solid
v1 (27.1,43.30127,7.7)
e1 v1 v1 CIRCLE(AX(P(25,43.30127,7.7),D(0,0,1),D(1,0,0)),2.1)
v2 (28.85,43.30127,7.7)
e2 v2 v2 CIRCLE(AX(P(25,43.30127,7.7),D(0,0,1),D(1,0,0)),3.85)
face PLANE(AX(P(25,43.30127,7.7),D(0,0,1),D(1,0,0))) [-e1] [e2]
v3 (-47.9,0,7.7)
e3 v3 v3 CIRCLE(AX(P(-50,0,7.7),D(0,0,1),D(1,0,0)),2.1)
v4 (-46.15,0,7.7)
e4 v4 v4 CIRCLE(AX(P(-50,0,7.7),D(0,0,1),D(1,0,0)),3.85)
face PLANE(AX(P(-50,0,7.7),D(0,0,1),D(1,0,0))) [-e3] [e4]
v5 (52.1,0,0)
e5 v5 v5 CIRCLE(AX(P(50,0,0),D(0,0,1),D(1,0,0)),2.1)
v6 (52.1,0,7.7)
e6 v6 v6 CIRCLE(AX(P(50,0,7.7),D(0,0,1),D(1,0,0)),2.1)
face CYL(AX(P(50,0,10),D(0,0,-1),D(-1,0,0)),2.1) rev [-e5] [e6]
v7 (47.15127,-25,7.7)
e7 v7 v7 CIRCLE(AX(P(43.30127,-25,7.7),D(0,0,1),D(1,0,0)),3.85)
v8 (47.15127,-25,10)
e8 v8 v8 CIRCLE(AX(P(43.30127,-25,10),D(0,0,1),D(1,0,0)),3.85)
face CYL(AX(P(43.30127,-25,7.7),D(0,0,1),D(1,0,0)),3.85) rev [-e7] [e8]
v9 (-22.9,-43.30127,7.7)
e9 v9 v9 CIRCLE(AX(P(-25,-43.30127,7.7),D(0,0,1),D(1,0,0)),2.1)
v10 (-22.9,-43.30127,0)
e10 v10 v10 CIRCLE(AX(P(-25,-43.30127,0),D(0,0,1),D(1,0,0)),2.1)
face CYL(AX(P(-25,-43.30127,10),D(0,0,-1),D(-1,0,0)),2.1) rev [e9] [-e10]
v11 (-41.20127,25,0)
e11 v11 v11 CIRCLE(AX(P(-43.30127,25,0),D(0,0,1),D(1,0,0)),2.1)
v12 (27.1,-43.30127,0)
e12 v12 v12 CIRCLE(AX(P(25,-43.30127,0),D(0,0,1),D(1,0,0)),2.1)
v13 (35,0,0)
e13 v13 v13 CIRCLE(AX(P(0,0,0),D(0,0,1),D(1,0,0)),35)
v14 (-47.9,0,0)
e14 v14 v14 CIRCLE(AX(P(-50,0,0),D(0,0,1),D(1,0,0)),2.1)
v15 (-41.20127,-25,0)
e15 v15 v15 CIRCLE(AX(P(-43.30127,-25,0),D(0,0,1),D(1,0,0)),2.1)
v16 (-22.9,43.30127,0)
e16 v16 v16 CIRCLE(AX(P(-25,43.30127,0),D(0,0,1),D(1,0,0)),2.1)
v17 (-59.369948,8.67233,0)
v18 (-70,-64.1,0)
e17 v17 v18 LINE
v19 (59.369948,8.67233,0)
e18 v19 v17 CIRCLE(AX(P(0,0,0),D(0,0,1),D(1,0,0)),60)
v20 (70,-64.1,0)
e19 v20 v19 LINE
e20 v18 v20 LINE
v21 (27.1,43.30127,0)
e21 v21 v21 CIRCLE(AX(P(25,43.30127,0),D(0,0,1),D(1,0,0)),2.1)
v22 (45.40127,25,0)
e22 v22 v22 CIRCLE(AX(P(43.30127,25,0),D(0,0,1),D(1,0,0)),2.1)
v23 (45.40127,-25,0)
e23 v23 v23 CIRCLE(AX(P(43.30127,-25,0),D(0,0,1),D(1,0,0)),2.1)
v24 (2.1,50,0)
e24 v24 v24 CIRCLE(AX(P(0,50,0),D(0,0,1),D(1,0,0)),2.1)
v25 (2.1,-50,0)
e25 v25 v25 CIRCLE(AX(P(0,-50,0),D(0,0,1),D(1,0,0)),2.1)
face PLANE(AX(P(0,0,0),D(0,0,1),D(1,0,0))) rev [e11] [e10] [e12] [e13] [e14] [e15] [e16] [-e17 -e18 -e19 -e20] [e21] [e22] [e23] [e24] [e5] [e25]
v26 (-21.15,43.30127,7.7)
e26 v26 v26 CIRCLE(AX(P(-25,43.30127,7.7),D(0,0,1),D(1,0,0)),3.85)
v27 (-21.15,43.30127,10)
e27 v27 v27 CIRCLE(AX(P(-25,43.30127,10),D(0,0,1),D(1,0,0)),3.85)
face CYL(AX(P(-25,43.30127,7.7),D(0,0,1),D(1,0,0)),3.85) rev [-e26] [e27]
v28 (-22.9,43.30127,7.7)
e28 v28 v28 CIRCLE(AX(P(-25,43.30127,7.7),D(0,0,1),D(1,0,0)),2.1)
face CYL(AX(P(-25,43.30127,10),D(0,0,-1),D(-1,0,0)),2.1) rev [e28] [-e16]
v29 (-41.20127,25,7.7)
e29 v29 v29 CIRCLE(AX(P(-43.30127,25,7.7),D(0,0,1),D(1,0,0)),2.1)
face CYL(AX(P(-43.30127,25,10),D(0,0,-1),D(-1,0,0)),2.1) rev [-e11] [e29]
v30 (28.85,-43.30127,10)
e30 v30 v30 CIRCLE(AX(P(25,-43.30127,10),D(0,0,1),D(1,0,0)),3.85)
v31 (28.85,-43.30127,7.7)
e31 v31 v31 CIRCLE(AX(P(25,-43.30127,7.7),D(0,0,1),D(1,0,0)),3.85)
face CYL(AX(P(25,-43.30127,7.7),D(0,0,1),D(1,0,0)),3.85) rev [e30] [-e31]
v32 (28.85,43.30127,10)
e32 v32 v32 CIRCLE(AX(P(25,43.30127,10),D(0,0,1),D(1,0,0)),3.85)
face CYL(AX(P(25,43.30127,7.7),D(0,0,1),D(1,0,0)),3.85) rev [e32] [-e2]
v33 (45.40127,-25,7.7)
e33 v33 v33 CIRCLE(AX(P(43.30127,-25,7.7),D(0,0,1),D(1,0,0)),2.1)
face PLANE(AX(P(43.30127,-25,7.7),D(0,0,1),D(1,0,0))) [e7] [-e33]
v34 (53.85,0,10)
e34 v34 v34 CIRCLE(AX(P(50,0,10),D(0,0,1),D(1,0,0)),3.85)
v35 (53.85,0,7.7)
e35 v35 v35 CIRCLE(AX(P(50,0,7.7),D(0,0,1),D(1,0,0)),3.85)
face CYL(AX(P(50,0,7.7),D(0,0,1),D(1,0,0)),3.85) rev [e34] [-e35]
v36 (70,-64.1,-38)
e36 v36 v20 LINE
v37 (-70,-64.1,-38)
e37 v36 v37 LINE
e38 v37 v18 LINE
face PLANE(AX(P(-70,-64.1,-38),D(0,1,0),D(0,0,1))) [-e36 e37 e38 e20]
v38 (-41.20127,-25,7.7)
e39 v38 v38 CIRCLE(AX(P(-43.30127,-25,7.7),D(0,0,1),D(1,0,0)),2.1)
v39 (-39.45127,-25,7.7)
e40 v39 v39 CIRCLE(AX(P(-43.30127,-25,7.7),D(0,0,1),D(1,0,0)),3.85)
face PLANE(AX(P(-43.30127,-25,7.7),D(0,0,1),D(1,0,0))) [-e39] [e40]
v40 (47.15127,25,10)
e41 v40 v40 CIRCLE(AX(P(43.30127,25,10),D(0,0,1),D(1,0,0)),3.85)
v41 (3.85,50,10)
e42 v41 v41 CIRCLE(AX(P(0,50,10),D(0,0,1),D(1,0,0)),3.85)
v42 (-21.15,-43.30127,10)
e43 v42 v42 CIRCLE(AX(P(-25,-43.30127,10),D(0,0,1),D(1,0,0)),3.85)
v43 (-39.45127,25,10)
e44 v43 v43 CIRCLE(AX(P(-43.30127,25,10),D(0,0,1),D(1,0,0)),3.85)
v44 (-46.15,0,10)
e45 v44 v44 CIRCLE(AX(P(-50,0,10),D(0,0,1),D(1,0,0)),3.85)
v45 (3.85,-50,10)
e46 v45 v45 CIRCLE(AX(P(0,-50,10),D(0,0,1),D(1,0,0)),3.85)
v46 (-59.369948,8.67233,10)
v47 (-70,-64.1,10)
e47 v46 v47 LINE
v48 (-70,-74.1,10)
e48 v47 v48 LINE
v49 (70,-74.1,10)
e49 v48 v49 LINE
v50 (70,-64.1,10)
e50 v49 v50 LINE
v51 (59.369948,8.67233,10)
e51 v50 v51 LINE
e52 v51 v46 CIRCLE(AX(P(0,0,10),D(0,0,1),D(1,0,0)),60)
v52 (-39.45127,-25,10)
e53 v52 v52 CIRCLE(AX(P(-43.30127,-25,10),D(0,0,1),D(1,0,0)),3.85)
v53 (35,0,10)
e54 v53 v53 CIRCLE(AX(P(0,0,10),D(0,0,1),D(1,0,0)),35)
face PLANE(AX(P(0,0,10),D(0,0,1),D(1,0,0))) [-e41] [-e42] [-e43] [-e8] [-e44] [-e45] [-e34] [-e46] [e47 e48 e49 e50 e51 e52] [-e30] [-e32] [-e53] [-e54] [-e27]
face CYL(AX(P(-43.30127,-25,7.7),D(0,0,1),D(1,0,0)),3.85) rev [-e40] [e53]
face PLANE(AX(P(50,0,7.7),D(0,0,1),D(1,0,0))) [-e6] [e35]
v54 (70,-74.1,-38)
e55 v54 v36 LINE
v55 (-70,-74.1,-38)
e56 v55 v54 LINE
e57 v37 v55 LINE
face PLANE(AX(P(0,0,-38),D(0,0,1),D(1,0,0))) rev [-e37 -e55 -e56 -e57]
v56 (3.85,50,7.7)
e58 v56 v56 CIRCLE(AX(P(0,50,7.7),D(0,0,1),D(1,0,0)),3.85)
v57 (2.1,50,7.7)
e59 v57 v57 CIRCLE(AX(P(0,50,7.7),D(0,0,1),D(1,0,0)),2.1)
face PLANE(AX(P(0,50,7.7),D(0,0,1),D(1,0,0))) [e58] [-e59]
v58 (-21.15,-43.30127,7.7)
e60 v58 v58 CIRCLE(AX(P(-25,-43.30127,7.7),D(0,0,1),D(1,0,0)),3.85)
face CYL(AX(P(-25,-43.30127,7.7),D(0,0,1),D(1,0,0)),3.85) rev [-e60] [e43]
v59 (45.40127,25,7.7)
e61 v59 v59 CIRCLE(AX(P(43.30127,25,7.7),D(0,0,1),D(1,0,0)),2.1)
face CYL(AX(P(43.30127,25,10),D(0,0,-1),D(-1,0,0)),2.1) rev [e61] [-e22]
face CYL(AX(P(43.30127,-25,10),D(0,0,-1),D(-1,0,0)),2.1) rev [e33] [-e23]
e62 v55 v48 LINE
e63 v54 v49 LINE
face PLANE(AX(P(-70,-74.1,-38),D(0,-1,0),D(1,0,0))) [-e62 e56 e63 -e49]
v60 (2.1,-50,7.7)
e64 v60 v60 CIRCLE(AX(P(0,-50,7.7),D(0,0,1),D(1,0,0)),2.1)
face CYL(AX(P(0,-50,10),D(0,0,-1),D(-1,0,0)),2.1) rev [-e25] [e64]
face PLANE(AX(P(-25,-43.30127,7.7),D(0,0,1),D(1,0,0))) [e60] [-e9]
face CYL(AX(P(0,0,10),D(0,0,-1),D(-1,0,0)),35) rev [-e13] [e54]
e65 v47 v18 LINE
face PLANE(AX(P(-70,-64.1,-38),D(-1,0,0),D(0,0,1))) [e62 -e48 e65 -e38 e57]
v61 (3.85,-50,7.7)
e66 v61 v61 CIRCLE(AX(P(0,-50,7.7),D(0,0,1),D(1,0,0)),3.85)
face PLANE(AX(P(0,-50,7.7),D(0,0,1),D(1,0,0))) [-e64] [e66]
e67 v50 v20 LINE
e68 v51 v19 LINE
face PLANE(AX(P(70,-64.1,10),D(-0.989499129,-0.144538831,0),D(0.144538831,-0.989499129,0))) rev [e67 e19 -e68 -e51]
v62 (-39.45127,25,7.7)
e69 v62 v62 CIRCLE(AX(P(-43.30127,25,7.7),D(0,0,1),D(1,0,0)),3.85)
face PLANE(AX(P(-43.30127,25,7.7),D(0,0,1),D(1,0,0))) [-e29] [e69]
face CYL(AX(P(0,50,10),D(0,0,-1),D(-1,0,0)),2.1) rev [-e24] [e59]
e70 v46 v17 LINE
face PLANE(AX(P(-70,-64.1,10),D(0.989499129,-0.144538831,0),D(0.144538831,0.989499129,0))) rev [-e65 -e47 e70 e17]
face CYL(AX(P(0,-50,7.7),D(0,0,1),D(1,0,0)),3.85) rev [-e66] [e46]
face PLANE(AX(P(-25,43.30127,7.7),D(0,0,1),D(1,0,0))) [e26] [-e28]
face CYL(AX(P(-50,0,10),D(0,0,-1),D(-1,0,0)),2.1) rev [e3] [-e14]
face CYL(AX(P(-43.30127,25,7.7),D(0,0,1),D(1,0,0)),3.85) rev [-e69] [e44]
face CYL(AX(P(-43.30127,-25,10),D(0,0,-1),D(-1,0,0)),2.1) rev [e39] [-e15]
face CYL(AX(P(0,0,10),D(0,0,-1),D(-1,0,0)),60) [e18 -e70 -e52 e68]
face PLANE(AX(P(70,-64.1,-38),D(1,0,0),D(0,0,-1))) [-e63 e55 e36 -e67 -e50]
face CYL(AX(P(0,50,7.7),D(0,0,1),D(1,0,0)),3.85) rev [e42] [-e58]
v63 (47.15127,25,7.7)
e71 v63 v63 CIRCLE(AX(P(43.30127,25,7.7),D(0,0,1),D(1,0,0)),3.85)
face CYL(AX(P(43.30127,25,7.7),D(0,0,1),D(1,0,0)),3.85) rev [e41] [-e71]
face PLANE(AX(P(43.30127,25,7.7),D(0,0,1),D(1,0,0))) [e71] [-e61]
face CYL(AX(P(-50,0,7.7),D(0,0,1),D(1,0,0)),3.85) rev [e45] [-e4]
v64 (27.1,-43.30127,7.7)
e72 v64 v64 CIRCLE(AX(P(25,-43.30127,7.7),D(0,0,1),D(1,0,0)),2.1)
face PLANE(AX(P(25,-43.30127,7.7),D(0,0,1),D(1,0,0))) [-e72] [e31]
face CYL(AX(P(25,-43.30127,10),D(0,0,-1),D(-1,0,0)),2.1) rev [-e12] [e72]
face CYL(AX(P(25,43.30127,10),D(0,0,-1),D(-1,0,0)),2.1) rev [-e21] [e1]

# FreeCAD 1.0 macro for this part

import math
import FreeCAD as App
import Part
import Sketcher

V = App.Vector
Q = App.Units.Quantity


def add_polygon(sketch, points):
    """Adds a closed chain of lines whose ends are joined by coincident constraints."""
    first, n = sketch.GeometryCount, len(points)
    for a, b in zip(points, points[1:] + points[:1]):
        sketch.addGeometry(Part.LineSegment(App.Vector(*a, 0), App.Vector(*b, 0)), False)
    for i in range(n):
        sketch.addConstraint(Sketcher.Constraint("Coincident", first + i, 2, first + (i + 1) % n, 1))

doc = App.newDocument("Part")
body = doc.addObject("PartDesign::Body", "Body")

sketch1 = body.newObject("Sketcher::SketchObject", "Sketch")
sketch1.AttachmentSupport = (doc.getObject("XY_Plane"), [""])
sketch1.MapMode = "FlatFace"
sketch1.addGeometry(Part.LineSegment(V(-59.369948, 8.67233, 0), V(-70, -64.1, 0)), False)
sketch1.addGeometry(Part.LineSegment(V(-70, -64.1, 0), V(70, -64.1, 0)), False)
sketch1.addGeometry(Part.LineSegment(V(70, -64.1, 0), V(59.369948, 8.67233, 0)), False)
sketch1.addGeometry(Part.ArcOfCircle(Part.Circle(V(0, 0, 0), V(0, 0, 1), 60), math.radians(8.310575), math.radians(171.689425)), False)
sketch1.addGeometry(Part.Circle(V(25, -43.30127, 0), V(0, 0, 1), 2.1), False)
sketch1.addGeometry(Part.Circle(V(43.30127, -25, 0), V(0, 0, 1), 2.1), False)
sketch1.addGeometry(Part.Circle(V(0, -50, 0), V(0, 0, 1), 2.1), False)
sketch1.addGeometry(Part.Circle(V(-25, -43.30127, 0), V(0, 0, 1), 2.1), False)
sketch1.addGeometry(Part.Circle(V(-43.30127, -25, 0), V(0, 0, 1), 2.1), False)
sketch1.addGeometry(Part.Circle(V(50, 0, 0), V(0, 0, 1), 2.1), False)
sketch1.addGeometry(Part.Circle(V(43.30127, 25, 0), V(0, 0, 1), 2.1), False)
sketch1.addGeometry(Part.Circle(V(25, 43.30127, 0), V(0, 0, 1), 2.1), False)
sketch1.addGeometry(Part.Circle(V(0, 0, 0), V(0, 0, 1), 35), False)
sketch1.addGeometry(Part.Circle(V(-50, 0, 0), V(0, 0, 1), 2.1), False)
sketch1.addGeometry(Part.Circle(V(-43.30127, 25, 0), V(0, 0, 1), 2.1), False)
sketch1.addGeometry(Part.Circle(V(0, 50, 0), V(0, 0, 1), 2.1), False)
sketch1.addGeometry(Part.Circle(V(-25, 43.30127, 0), V(0, 0, 1), 2.1), False)
sketch1.addConstraint(Sketcher.Constraint("Coincident", 0, 2, 1, 1))
sketch1.addConstraint(Sketcher.Constraint("Coincident", 1, 2, 2, 1))
sketch1.addConstraint(Sketcher.Constraint("Tangent", 2, 2, 3, 1))
sketch1.addConstraint(Sketcher.Constraint("Tangent", 3, 2, 0, 1))
sketch1.addConstraint(Sketcher.Constraint("Horizontal", 1))
sketch1.addConstraint(Sketcher.Constraint("Coincident", 3, 3, -1, 1))
sketch1.addConstraint(Sketcher.Constraint("Coincident", 12, 3, -1, 1))
sketch1.addConstraint(Sketcher.Constraint("Equal", 4, 5))
sketch1.addConstraint(Sketcher.Constraint("Equal", 5, 6))
sketch1.addConstraint(Sketcher.Constraint("Equal", 6, 7))
sketch1.addConstraint(Sketcher.Constraint("Equal", 7, 8))
sketch1.addConstraint(Sketcher.Constraint("Equal", 8, 9))
sketch1.addConstraint(Sketcher.Constraint("Equal", 9, 10))
sketch1.addConstraint(Sketcher.Constraint("Equal", 10, 11))
sketch1.addConstraint(Sketcher.Constraint("Equal", 11, 13))
sketch1.addConstraint(Sketcher.Constraint("Equal", 13, 14))
sketch1.addConstraint(Sketcher.Constraint("Equal", 14, 15))
sketch1.addConstraint(Sketcher.Constraint("Equal", 15, 16))
sketch1.addConstraint(Sketcher.Constraint("Symmetric", 8, 3, 10, 3, -1, 1))
sketch1.addConstraint(Sketcher.Constraint("Symmetric", 7, 3, 11, 3, -1, 1))
sketch1.addConstraint(Sketcher.Constraint("Symmetric", 9, 3, 13, 3, -1, 1))
sketch1.addConstraint(Sketcher.Constraint("Symmetric", 5, 3, 14, 3, -1, 1))
sketch1.addConstraint(Sketcher.Constraint("Symmetric", 6, 3, 15, 3, -1, 1))
sketch1.addConstraint(Sketcher.Constraint("Symmetric", 4, 3, 16, 3, -1, 1))
sketch1.addConstraint(Sketcher.Constraint("Symmetric", 4, 3, 7, 3, -2))
sketch1.addConstraint(Sketcher.Constraint("Symmetric", 5, 3, 8, 3, -2))
sketch1.addConstraint(Sketcher.Constraint("PointOnObject", 6, 3, -2))
sketch1.addConstraint(Sketcher.Constraint("PointOnObject", 9, 3, -1))
sketch1.addConstraint(Sketcher.Constraint("Horizontal", 2, 2, 3, 2))
sketch1.addConstraint(Sketcher.Constraint("Diameter", 12, Q("70 mm")))
sketch1.addConstraint(Sketcher.Constraint("Radius", 3, Q("60 mm")))
sketch1.addConstraint(Sketcher.Constraint("Diameter", 4, Q("4.2 mm")))
sketch1.addConstraint(Sketcher.Constraint("DistanceX", 1, 1, 1, 2, Q("140 mm")))
sketch1.addConstraint(Sketcher.Constraint("DistanceX", -1, 1, 4, 3, Q("25 mm")))
sketch1.addConstraint(Sketcher.Constraint("DistanceY", 5, 3, -1, 1, Q("25 mm")))
sketch1.addConstraint(Sketcher.Constraint("DistanceY", 6, 3, -1, 1, Q("50 mm")))
sketch1.addConstraint(Sketcher.Constraint("DistanceX", -1, 1, 9, 3, Q("50 mm")))
sketch1.addConstraint(Sketcher.Constraint("DistanceY", 0, 2, -1, 1, Q("64.1 mm")))
sketch1.addConstraint(Sketcher.Constraint("DistanceY", 4, 3, -1, 1, Q("43.30127 mm")))
sketch1.addConstraint(Sketcher.Constraint("DistanceX", -1, 1, 5, 3, Q("43.30127 mm")))
pad1 = body.newObject("PartDesign::Pad", "Pad")
pad1.Profile = sketch1
pad1.Length = 10

sketch2 = body.newObject("Sketcher::SketchObject", "Sketch001")
sketch2.AttachmentSupport = (doc.getObject("XY_Plane"), [""])
sketch2.MapMode = "FlatFace"
sketch2.AttachmentOffset = App.Placement(V(0, 0, 10), App.Rotation())
add_polygon(sketch2, [(-70, -64.1), (-70, -74.1), (70, -74.1), (70, -64.1)])
sketch2.addConstraint(Sketcher.Constraint("Vertical", 0))
sketch2.addConstraint(Sketcher.Constraint("Horizontal", 1))
sketch2.addConstraint(Sketcher.Constraint("Vertical", 2))
sketch2.addConstraint(Sketcher.Constraint("Horizontal", 3))
sketch2.addConstraint(Sketcher.Constraint("DistanceX", 1, 1, 1, 2, Q("140 mm")))
sketch2.addConstraint(Sketcher.Constraint("DistanceY", 0, 2, 0, 1, Q("10 mm")))
sketch2.addConstraint(Sketcher.Constraint("DistanceX", 0, 2, -1, 1, Q("70 mm")))
sketch2.addConstraint(Sketcher.Constraint("DistanceY", 0, 2, -1, 1, Q("74.1 mm")))
pad2 = body.newObject("PartDesign::Pad", "Pad001")
pad2.Profile = sketch2
pad2.Length = 48
pad2.Reversed = True

sketch3 = body.newObject("Sketcher::SketchObject", "Sketch002")
sketch3.AttachmentSupport = (doc.getObject("XY_Plane"), [""])
sketch3.MapMode = "FlatFace"
sketch3.AttachmentOffset = App.Placement(V(0, 0, 10), App.Rotation())
sketch3.addGeometry(Part.Circle(V(0, -50, 0), V(0, 0, 1), 3.85), False)
sketch3.addGeometry(Part.Circle(V(-25, -43.30127, 0), V(0, 0, 1), 3.85), False)
sketch3.addGeometry(Part.Circle(V(-43.30127, -25, 0), V(0, 0, 1), 3.85), False)
sketch3.addGeometry(Part.Circle(V(-50, 0, 0), V(0, 0, 1), 3.85), False)
sketch3.addGeometry(Part.Circle(V(-43.30127, 25, 0), V(0, 0, 1), 3.85), False)
sketch3.addGeometry(Part.Circle(V(-25, 43.30127, 0), V(0, 0, 1), 3.85), False)
sketch3.addGeometry(Part.Circle(V(0, 50, 0), V(0, 0, 1), 3.85), False)
sketch3.addGeometry(Part.Circle(V(25, 43.30127, 0), V(0, 0, 1), 3.85), False)
sketch3.addGeometry(Part.Circle(V(43.30127, 25, 0), V(0, 0, 1), 3.85), False)
sketch3.addGeometry(Part.Circle(V(50, 0, 0), V(0, 0, 1), 3.85), False)
sketch3.addGeometry(Part.Circle(V(43.30127, -25, 0), V(0, 0, 1), 3.85), False)
sketch3.addGeometry(Part.Circle(V(25, -43.30127, 0), V(0, 0, 1), 3.85), False)
sketch3.addConstraint(Sketcher.Constraint("Equal", 0, 1))
sketch3.addConstraint(Sketcher.Constraint("Equal", 1, 2))
sketch3.addConstraint(Sketcher.Constraint("Equal", 2, 3))
sketch3.addConstraint(Sketcher.Constraint("Equal", 3, 4))
sketch3.addConstraint(Sketcher.Constraint("Equal", 4, 5))
sketch3.addConstraint(Sketcher.Constraint("Equal", 5, 6))
sketch3.addConstraint(Sketcher.Constraint("Equal", 6, 7))
sketch3.addConstraint(Sketcher.Constraint("Equal", 7, 8))
sketch3.addConstraint(Sketcher.Constraint("Equal", 8, 9))
sketch3.addConstraint(Sketcher.Constraint("Equal", 9, 10))
sketch3.addConstraint(Sketcher.Constraint("Equal", 10, 11))
sketch3.addConstraint(Sketcher.Constraint("Symmetric", 0, 3, 6, 3, -1, 1))
sketch3.addConstraint(Sketcher.Constraint("Symmetric", 1, 3, 7, 3, -1, 1))
sketch3.addConstraint(Sketcher.Constraint("Symmetric", 2, 3, 8, 3, -1, 1))
sketch3.addConstraint(Sketcher.Constraint("Symmetric", 3, 3, 9, 3, -1, 1))
sketch3.addConstraint(Sketcher.Constraint("Symmetric", 4, 3, 10, 3, -1, 1))
sketch3.addConstraint(Sketcher.Constraint("Symmetric", 5, 3, 11, 3, -1, 1))
sketch3.addConstraint(Sketcher.Constraint("Symmetric", 5, 3, 7, 3, -2))
sketch3.addConstraint(Sketcher.Constraint("Symmetric", 4, 3, 8, 3, -2))
sketch3.addConstraint(Sketcher.Constraint("PointOnObject", 0, 3, -2))
sketch3.addConstraint(Sketcher.Constraint("PointOnObject", 3, 3, -1))
sketch3.addConstraint(Sketcher.Constraint("Diameter", 0, Q("7.7 mm")))
sketch3.addConstraint(Sketcher.Constraint("DistanceY", 0, 3, -1, 1, Q("50 mm")))
sketch3.addConstraint(Sketcher.Constraint("DistanceX", 1, 3, -1, 1, Q("25 mm")))
sketch3.addConstraint(Sketcher.Constraint("DistanceY", 2, 3, -1, 1, Q("25 mm")))
sketch3.addConstraint(Sketcher.Constraint("DistanceX", 3, 3, -1, 1, Q("50 mm")))
sketch3.addConstraint(Sketcher.Constraint("DistanceY", 1, 3, -1, 1, Q("43.30127 mm")))
sketch3.addConstraint(Sketcher.Constraint("DistanceX", 2, 3, -1, 1, Q("43.30127 mm")))
pocket1 = body.newObject("PartDesign::Pocket", "Pocket")
pocket1.Profile = sketch3
pocket1.Length = 2.3

doc.recompute()
